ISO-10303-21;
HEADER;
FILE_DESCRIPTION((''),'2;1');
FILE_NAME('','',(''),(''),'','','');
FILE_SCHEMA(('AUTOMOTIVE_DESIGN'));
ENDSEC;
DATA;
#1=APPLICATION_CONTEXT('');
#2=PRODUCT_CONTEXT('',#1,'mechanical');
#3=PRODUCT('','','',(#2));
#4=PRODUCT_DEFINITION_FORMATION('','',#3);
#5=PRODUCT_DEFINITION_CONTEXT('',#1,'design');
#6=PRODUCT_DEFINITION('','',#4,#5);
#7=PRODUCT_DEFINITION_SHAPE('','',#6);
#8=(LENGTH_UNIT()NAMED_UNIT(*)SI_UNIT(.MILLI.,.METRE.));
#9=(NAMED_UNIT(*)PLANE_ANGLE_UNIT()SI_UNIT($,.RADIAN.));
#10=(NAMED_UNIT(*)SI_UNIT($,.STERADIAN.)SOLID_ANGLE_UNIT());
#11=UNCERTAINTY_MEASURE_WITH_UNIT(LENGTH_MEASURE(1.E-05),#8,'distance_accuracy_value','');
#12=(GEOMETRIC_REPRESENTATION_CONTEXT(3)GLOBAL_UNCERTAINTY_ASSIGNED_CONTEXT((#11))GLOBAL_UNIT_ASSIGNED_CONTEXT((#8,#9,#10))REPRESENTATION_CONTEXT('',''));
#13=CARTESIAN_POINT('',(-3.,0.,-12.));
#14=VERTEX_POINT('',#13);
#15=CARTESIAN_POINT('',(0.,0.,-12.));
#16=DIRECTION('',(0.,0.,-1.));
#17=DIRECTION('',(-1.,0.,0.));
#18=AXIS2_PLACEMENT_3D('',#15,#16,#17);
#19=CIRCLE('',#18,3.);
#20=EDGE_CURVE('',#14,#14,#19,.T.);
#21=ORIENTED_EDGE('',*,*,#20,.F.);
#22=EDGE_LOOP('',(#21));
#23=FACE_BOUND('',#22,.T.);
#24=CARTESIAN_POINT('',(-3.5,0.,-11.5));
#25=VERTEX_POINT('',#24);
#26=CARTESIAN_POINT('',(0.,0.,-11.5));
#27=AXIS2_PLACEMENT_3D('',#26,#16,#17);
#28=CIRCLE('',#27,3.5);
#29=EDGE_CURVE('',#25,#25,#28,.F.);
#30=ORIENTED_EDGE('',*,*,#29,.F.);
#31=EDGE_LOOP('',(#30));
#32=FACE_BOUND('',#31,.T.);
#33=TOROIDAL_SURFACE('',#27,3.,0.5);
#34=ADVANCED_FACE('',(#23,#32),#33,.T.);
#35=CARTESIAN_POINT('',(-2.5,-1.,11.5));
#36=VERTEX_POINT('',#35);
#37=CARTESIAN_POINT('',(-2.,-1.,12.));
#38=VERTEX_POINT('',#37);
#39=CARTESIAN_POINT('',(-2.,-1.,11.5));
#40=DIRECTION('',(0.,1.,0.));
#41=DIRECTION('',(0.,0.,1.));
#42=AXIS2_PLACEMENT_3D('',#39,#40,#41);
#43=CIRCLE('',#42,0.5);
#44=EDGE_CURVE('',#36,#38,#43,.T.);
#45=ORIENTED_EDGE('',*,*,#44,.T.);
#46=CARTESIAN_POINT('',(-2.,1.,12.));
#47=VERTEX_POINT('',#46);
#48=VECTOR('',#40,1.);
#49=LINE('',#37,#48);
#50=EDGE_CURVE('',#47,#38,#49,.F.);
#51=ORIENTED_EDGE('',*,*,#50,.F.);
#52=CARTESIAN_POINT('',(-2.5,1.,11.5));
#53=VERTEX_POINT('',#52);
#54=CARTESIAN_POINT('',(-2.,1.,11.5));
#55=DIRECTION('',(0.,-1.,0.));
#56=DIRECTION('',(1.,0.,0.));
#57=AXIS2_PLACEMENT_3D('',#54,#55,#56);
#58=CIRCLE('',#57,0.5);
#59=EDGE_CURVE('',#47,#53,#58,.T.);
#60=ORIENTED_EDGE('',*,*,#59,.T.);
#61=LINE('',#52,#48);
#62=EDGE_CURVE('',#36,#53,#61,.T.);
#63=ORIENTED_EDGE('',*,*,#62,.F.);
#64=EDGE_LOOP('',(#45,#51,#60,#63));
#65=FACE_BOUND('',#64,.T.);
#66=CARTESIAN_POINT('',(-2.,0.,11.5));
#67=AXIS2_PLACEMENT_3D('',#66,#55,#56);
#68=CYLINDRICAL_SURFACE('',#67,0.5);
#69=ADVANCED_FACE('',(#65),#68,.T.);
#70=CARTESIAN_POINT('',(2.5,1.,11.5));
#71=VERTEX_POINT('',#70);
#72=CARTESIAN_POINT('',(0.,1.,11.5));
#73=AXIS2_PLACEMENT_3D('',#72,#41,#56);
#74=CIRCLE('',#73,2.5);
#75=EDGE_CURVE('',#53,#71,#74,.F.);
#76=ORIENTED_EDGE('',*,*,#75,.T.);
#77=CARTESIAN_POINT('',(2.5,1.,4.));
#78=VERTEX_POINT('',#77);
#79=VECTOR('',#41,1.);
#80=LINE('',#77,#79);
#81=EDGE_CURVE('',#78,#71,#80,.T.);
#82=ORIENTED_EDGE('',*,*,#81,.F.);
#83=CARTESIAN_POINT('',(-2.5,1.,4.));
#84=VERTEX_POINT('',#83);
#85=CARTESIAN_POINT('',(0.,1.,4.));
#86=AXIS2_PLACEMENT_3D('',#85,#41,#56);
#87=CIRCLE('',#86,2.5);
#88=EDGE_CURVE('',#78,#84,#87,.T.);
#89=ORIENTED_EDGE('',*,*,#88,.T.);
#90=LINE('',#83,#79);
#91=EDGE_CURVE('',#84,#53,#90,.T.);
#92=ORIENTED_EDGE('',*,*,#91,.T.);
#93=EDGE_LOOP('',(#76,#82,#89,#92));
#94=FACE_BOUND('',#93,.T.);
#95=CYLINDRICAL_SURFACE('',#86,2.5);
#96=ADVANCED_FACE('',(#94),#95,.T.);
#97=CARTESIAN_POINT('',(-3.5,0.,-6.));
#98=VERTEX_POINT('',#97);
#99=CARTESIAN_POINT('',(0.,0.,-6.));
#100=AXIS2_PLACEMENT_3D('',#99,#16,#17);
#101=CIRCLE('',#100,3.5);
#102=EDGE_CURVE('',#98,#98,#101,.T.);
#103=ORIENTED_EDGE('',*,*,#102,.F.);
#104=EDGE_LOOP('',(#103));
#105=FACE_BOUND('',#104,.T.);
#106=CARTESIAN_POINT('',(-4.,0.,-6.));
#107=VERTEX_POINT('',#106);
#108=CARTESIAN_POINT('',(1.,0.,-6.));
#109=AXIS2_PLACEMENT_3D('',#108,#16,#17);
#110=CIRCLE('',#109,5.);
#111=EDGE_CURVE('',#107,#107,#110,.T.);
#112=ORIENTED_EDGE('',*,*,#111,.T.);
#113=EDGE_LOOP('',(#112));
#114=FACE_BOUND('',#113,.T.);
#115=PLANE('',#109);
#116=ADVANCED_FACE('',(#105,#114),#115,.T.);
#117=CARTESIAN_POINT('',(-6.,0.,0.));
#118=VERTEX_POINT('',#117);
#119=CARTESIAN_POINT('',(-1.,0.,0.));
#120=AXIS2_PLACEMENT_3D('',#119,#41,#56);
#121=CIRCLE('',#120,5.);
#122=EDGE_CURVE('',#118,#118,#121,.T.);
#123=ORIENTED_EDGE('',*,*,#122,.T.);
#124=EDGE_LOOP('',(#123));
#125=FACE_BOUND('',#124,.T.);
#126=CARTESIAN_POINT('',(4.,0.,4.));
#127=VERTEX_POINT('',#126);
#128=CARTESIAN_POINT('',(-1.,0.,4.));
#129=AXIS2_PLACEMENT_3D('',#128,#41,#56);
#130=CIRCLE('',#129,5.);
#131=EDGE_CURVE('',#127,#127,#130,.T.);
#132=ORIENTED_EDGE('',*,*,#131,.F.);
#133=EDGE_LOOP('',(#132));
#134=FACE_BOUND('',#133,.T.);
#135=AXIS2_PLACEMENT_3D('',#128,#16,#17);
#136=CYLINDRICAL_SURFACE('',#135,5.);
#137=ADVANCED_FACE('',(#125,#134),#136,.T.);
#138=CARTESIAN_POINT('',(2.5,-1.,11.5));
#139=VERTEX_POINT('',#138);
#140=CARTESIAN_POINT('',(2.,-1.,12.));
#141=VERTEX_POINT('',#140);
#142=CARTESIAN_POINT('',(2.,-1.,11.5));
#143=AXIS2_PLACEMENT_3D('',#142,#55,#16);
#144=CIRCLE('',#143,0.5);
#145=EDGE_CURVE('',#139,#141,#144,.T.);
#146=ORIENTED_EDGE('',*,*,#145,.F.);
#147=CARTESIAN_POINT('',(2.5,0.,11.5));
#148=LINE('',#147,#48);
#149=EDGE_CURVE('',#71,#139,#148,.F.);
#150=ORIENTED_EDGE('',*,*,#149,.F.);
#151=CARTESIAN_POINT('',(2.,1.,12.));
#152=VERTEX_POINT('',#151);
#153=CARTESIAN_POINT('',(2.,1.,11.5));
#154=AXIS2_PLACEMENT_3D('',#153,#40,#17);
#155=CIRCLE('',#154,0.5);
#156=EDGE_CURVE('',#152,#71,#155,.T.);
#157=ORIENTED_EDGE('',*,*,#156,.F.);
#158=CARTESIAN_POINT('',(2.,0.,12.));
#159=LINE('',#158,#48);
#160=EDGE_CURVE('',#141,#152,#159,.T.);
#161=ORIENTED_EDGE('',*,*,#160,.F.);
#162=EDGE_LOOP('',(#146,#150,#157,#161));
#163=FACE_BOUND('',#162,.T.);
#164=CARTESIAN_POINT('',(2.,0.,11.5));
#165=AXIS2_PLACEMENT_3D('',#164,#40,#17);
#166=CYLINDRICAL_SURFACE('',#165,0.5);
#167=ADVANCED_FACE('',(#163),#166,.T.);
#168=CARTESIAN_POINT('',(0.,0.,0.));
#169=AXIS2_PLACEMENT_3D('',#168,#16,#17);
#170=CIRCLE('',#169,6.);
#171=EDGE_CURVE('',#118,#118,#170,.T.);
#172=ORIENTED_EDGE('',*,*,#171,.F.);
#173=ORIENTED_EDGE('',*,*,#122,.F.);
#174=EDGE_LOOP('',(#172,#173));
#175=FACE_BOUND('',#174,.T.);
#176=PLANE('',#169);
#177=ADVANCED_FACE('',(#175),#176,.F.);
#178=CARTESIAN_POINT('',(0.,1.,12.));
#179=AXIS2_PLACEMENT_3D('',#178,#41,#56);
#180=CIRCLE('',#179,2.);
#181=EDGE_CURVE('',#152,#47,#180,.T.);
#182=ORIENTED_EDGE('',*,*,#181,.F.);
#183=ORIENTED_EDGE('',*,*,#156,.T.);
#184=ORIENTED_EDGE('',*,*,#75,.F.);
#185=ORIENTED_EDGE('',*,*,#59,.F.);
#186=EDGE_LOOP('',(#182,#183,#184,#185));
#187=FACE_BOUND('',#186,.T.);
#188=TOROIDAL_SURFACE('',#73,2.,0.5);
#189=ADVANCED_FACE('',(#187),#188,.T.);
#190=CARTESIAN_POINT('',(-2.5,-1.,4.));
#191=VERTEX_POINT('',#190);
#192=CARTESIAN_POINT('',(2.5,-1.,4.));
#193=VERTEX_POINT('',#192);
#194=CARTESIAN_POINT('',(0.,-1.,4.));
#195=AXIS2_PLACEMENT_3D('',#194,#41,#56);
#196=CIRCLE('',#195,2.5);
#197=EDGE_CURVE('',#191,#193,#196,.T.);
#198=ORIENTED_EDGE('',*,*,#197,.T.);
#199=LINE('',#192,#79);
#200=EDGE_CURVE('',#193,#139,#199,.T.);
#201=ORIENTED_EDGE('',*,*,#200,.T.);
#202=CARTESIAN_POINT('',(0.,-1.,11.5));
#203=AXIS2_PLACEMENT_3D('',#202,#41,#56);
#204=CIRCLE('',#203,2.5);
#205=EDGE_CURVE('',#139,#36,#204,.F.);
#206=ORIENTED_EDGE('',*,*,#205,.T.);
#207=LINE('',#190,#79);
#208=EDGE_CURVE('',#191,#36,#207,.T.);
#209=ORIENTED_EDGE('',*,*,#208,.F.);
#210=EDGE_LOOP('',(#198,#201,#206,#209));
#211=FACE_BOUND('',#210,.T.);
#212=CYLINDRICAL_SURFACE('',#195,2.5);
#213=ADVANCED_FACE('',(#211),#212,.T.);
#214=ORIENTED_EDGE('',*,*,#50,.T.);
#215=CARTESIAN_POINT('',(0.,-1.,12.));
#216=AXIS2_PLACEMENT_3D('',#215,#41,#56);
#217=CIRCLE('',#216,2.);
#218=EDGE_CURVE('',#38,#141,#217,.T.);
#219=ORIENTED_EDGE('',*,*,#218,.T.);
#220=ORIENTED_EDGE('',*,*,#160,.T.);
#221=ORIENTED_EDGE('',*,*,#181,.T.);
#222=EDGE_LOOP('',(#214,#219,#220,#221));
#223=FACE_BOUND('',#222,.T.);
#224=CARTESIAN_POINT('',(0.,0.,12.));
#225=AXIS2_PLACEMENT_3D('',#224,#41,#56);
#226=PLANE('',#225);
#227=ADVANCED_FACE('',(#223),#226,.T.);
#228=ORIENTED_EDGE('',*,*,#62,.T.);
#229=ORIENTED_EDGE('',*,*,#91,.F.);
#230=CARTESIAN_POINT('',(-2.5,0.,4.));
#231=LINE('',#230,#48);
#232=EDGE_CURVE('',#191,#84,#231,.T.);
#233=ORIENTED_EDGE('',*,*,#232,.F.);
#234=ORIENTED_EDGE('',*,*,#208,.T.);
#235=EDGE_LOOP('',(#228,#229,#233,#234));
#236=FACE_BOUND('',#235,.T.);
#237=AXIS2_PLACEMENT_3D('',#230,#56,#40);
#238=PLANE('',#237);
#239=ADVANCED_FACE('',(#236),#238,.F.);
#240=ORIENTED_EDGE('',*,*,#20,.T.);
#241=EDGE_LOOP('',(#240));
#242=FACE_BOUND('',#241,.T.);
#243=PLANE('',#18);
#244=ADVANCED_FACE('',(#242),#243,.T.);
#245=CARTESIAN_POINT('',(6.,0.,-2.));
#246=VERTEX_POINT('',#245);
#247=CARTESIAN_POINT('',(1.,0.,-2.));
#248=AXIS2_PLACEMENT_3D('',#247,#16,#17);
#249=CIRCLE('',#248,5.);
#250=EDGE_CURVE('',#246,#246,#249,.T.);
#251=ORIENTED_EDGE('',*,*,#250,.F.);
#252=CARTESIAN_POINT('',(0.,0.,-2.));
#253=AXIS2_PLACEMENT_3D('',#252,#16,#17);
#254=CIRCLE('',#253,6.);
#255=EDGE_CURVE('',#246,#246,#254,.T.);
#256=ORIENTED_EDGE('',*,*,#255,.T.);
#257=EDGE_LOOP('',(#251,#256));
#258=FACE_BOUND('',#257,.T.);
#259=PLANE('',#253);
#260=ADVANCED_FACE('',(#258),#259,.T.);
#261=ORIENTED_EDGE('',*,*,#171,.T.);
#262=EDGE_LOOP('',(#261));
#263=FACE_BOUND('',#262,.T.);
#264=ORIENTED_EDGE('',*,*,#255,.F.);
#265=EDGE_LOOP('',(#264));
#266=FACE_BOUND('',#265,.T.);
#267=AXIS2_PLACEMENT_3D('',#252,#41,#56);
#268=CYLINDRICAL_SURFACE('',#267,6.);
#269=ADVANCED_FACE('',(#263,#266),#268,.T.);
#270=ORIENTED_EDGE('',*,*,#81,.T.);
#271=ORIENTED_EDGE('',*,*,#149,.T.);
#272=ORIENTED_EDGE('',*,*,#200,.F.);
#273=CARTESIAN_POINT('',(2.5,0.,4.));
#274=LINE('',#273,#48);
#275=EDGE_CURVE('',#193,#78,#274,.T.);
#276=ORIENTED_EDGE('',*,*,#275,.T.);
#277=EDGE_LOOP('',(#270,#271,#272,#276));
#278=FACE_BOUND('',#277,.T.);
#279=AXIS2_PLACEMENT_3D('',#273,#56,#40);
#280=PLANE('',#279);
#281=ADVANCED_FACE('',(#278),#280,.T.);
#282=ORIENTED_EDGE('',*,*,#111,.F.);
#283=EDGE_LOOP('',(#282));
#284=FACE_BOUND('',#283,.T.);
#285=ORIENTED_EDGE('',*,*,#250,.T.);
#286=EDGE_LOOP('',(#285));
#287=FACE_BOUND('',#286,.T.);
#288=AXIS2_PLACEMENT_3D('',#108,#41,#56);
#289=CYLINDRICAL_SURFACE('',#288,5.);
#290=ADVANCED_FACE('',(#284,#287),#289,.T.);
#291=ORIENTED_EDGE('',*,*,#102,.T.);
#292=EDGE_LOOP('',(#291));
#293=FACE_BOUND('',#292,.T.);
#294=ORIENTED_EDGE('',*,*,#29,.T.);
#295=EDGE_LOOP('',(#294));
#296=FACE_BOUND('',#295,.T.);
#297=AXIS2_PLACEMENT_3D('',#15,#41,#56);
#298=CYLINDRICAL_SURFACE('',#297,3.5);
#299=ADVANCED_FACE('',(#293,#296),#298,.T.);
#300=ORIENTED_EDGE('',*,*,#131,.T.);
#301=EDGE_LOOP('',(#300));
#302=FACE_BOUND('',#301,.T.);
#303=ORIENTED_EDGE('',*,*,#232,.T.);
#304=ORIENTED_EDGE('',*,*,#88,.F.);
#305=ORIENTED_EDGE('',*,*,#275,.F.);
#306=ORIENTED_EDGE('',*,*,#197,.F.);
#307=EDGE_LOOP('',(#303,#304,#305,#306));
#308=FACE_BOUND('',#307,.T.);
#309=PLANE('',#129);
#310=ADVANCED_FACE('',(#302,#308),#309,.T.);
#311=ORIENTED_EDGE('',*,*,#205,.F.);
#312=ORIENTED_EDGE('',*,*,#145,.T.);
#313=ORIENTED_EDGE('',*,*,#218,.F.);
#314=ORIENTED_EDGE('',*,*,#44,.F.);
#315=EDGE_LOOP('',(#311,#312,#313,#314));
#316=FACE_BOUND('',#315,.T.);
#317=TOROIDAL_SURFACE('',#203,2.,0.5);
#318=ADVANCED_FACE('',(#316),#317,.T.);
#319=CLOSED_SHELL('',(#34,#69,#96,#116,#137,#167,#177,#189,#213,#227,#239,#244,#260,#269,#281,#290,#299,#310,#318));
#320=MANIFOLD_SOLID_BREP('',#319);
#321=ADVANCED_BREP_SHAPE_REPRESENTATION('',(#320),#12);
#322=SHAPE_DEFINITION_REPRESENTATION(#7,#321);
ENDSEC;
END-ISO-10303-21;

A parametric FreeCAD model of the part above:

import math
import FreeCAD as App
import Part
import Sketcher
from FreeCAD import Vector


def edges_at(feature, points):
    """Names of the edges that pass closest to the given points."""
    edges = feature.Shape.Edges
    near = lambda p: min(range(len(edges)), key=lambda i: edges[i].distToShape(Part.Vertex(*p))[0])
    return sorted({f"Edge{near(p) + 1}" for p in points})

doc = App.newDocument("Part")
body = doc.addObject("PartDesign::Body", "Body")

# Sketch on XY plane
sketch1 = body.newObject("Sketcher::SketchObject", "Sketch")
sketch1.AttachmentSupport = (doc.getObject("XY_Plane"), [""])
sketch1.MapMode = "FlatFace"
sketch1.addGeometry(Part.Circle(Vector(-1, 0, 0), Vector(0, 0, 1), 5), False)
sketch1.addConstraint(Sketcher.Constraint("PointOnObject", 0, 3, -1))
sketch1.addConstraint(Sketcher.Constraint("Diameter", 0, 10.0))
sketch1.addConstraint(Sketcher.Constraint("DistanceX", 0, 3, -1, 1, 1.0))
pad1 = body.newObject("PartDesign::Pad", "Pad")
pad1.Profile = sketch1
pad1.Length = 4

# Sketch on XY plane
sketch2 = body.newObject("Sketcher::SketchObject", "Sketch001")
sketch2.AttachmentSupport = (doc.getObject("XY_Plane"), [""])
sketch2.MapMode = "FlatFace"
sketch2.addGeometry(Part.Circle(Vector(0, 0, 0), Vector(0, 0, 1), 6), False)
sketch2.addConstraint(Sketcher.Constraint("Coincident", 0, 3, -1, 1))
sketch2.addConstraint(Sketcher.Constraint("Diameter", 0, 12.0))
pad2 = body.newObject("PartDesign::Pad", "Pad001")
pad2.Profile = sketch2
pad2.Length = 2
pad2.Reversed = True

# Sketch on XY plane
sketch3 = body.newObject("Sketcher::SketchObject", "Sketch002")
sketch3.AttachmentSupport = (doc.getObject("XY_Plane"), [""])
sketch3.MapMode = "FlatFace"
sketch3.AttachmentOffset = App.Placement(Vector(0, 0, -2), App.Rotation())
sketch3.addGeometry(Part.Circle(Vector(1, 0, 0), Vector(0, 0, 1), 5), False)
sketch3.addConstraint(Sketcher.Constraint("PointOnObject", 0, 3, -1))
sketch3.addConstraint(Sketcher.Constraint("Diameter", 0, 10.0))
sketch3.addConstraint(Sketcher.Constraint("DistanceX", -1, 1, 0, 3, 1.0))
pad3 = body.newObject("PartDesign::Pad", "Pad002")
pad3.Profile = sketch3
pad3.Length = 4
pad3.Reversed = True

# Sketch on XY plane
sketch4 = body.newObject("Sketcher::SketchObject", "Sketch003")
sketch4.AttachmentSupport = (doc.getObject("XY_Plane"), [""])
sketch4.MapMode = "FlatFace"
sketch4.AttachmentOffset = App.Placement(Vector(0, 0, 4), App.Rotation())
sketch4.addGeometry(Part.Circle(Vector(0, 0, 0), Vector(0, 0, 1), 3.5), False)
sketch4.addConstraint(Sketcher.Constraint("Coincident", 0, 3, -1, 1))
sketch4.addConstraint(Sketcher.Constraint("Diameter", 0, 7.0))
pad4 = body.newObject("PartDesign::Pad", "Pad003")
pad4.Profile = sketch4
pad4.Length = 8

# Sketch on XY plane
sketch5 = body.newObject("Sketcher::SketchObject", "Sketch004")
sketch5.AttachmentSupport = (doc.getObject("XY_Plane"), [""])
sketch5.MapMode = "FlatFace"
sketch5.AttachmentOffset = App.Placement(Vector(0, 0, -12), App.Rotation())
sketch5.addGeometry(Part.Circle(Vector(0, 0, 0), Vector(0, 0, 1), 3.5), False)
sketch5.addConstraint(Sketcher.Constraint("Coincident", 0, 3, -1, 1))
sketch5.addConstraint(Sketcher.Constraint("Diameter", 0, 7.0))
pad5 = body.newObject("PartDesign::Pad", "Pad004")
pad5.Profile = sketch5
pad5.Length = 6

# Sketch on XY plane
sketch6 = body.newObject("Sketcher::SketchObject", "Sketch005")
sketch6.AttachmentSupport = (doc.getObject("XY_Plane"), [""])
sketch6.MapMode = "FlatFace"
sketch6.AttachmentOffset = App.Placement(Vector(0, 0, 4), App.Rotation())
sketch6.addGeometry(Part.ArcOfCircle(Part.Circle(Vector(0, -1, 0), Vector(0, 0, 1), 2.5), math.radians(-90), math.radians(0)), False)
sketch6.addGeometry(Part.ArcOfCircle(Part.Circle(Vector(0, 0, 0), Vector(0, 0, 1), 3.5), math.radians(-90), math.radians(0)), False)
sketch6.addGeometry(Part.ArcOfCircle(Part.Circle(Vector(0, 0, 0), Vector(0, 0, 1), 3.5), math.radians(0), math.radians(90)), False)
sketch6.addGeometry(Part.ArcOfCircle(Part.Circle(Vector(0, 1, 0), Vector(0, 0, 1), 2.5), math.radians(0), math.radians(90)), False)
sketch6.addGeometry(Part.LineSegment(Vector(2.5, 1, 0), Vector(2.5, -1, 0)), False)
sketch6.addGeometry(Part.ArcOfCircle(Part.Circle(Vector(0, -1, 0), Vector(0, 0, 1), 2.5), math.radians(180), math.radians(270)), False)
sketch6.addGeometry(Part.LineSegment(Vector(-2.5, -1, 0), Vector(-2.5, 1, 0)), False)
sketch6.addGeometry(Part.ArcOfCircle(Part.Circle(Vector(0, 1, 0), Vector(0, 0, 1), 2.5), math.radians(90), math.radians(180)), False)
sketch6.addGeometry(Part.ArcOfCircle(Part.Circle(Vector(0, 0, 0), Vector(0, 0, 1), 3.5), math.radians(90), math.radians(270)), False)
sketch6.addConstraint(Sketcher.Constraint("Tangent", 0, 1, 1, 1))
sketch6.addConstraint(Sketcher.Constraint("Tangent", 1, 2, 2, 1))
sketch6.addConstraint(Sketcher.Constraint("Tangent", 2, 2, 3, 2))
sketch6.addConstraint(Sketcher.Constraint("Tangent", 3, 1, 4, 1))
sketch6.addConstraint(Sketcher.Constraint("Tangent", 4, 2, 0, 2))
sketch6.addConstraint(Sketcher.Constraint("Tangent", 5, 1, 6, 1))
sketch6.addConstraint(Sketcher.Constraint("Tangent", 6, 2, 7, 2))
sketch6.addConstraint(Sketcher.Constraint("Tangent", 7, 1, 8, 1))
sketch6.addConstraint(Sketcher.Constraint("Tangent", 8, 2, 5, 2))
sketch6.addConstraint(Sketcher.Constraint("Vertical", 4))
sketch6.addConstraint(Sketcher.Constraint("Vertical", 6))
sketch6.addConstraint(Sketcher.Constraint("Coincident", 1, 3, -1, 1))
sketch6.addConstraint(Sketcher.Constraint("Coincident", 8, 3, -1, 1))
sketch6.addConstraint(Sketcher.Constraint("Coincident", 5, 3, 0, 3))
sketch6.addConstraint(Sketcher.Constraint("Coincident", 7, 3, 3, 3))
sketch6.addConstraint(Sketcher.Constraint("Coincident", 7, 1, 2, 2))
sketch6.addConstraint(Sketcher.Constraint("PointOnObject", 0, 3, -2))
sketch6.addConstraint(Sketcher.Constraint("PointOnObject", 1, 2, -1))
sketch6.addConstraint(Sketcher.Constraint("Radius", 0, 2.5))
sketch6.addConstraint(Sketcher.Constraint("Radius", 1, 3.5))
pocket1 = body.newObject("PartDesign::Pocket", "Pocket")
pocket1.Profile = sketch6
pocket1.Length = 8
pocket1.Reversed = True
doc.recompute()

fillet = body.newObject("PartDesign::Fillet", "Fillet")
fillet.Base = (pocket1, edges_at(pocket1, [
    (-3.5, 0, -12),
    (-1.768, 2.768, 12),
    (0, -3.5, 8),
    (2.5, 0, 12),
    (-2.5, 0, 12),
]))
fillet.Radius = 0.5

doc.recompute()
